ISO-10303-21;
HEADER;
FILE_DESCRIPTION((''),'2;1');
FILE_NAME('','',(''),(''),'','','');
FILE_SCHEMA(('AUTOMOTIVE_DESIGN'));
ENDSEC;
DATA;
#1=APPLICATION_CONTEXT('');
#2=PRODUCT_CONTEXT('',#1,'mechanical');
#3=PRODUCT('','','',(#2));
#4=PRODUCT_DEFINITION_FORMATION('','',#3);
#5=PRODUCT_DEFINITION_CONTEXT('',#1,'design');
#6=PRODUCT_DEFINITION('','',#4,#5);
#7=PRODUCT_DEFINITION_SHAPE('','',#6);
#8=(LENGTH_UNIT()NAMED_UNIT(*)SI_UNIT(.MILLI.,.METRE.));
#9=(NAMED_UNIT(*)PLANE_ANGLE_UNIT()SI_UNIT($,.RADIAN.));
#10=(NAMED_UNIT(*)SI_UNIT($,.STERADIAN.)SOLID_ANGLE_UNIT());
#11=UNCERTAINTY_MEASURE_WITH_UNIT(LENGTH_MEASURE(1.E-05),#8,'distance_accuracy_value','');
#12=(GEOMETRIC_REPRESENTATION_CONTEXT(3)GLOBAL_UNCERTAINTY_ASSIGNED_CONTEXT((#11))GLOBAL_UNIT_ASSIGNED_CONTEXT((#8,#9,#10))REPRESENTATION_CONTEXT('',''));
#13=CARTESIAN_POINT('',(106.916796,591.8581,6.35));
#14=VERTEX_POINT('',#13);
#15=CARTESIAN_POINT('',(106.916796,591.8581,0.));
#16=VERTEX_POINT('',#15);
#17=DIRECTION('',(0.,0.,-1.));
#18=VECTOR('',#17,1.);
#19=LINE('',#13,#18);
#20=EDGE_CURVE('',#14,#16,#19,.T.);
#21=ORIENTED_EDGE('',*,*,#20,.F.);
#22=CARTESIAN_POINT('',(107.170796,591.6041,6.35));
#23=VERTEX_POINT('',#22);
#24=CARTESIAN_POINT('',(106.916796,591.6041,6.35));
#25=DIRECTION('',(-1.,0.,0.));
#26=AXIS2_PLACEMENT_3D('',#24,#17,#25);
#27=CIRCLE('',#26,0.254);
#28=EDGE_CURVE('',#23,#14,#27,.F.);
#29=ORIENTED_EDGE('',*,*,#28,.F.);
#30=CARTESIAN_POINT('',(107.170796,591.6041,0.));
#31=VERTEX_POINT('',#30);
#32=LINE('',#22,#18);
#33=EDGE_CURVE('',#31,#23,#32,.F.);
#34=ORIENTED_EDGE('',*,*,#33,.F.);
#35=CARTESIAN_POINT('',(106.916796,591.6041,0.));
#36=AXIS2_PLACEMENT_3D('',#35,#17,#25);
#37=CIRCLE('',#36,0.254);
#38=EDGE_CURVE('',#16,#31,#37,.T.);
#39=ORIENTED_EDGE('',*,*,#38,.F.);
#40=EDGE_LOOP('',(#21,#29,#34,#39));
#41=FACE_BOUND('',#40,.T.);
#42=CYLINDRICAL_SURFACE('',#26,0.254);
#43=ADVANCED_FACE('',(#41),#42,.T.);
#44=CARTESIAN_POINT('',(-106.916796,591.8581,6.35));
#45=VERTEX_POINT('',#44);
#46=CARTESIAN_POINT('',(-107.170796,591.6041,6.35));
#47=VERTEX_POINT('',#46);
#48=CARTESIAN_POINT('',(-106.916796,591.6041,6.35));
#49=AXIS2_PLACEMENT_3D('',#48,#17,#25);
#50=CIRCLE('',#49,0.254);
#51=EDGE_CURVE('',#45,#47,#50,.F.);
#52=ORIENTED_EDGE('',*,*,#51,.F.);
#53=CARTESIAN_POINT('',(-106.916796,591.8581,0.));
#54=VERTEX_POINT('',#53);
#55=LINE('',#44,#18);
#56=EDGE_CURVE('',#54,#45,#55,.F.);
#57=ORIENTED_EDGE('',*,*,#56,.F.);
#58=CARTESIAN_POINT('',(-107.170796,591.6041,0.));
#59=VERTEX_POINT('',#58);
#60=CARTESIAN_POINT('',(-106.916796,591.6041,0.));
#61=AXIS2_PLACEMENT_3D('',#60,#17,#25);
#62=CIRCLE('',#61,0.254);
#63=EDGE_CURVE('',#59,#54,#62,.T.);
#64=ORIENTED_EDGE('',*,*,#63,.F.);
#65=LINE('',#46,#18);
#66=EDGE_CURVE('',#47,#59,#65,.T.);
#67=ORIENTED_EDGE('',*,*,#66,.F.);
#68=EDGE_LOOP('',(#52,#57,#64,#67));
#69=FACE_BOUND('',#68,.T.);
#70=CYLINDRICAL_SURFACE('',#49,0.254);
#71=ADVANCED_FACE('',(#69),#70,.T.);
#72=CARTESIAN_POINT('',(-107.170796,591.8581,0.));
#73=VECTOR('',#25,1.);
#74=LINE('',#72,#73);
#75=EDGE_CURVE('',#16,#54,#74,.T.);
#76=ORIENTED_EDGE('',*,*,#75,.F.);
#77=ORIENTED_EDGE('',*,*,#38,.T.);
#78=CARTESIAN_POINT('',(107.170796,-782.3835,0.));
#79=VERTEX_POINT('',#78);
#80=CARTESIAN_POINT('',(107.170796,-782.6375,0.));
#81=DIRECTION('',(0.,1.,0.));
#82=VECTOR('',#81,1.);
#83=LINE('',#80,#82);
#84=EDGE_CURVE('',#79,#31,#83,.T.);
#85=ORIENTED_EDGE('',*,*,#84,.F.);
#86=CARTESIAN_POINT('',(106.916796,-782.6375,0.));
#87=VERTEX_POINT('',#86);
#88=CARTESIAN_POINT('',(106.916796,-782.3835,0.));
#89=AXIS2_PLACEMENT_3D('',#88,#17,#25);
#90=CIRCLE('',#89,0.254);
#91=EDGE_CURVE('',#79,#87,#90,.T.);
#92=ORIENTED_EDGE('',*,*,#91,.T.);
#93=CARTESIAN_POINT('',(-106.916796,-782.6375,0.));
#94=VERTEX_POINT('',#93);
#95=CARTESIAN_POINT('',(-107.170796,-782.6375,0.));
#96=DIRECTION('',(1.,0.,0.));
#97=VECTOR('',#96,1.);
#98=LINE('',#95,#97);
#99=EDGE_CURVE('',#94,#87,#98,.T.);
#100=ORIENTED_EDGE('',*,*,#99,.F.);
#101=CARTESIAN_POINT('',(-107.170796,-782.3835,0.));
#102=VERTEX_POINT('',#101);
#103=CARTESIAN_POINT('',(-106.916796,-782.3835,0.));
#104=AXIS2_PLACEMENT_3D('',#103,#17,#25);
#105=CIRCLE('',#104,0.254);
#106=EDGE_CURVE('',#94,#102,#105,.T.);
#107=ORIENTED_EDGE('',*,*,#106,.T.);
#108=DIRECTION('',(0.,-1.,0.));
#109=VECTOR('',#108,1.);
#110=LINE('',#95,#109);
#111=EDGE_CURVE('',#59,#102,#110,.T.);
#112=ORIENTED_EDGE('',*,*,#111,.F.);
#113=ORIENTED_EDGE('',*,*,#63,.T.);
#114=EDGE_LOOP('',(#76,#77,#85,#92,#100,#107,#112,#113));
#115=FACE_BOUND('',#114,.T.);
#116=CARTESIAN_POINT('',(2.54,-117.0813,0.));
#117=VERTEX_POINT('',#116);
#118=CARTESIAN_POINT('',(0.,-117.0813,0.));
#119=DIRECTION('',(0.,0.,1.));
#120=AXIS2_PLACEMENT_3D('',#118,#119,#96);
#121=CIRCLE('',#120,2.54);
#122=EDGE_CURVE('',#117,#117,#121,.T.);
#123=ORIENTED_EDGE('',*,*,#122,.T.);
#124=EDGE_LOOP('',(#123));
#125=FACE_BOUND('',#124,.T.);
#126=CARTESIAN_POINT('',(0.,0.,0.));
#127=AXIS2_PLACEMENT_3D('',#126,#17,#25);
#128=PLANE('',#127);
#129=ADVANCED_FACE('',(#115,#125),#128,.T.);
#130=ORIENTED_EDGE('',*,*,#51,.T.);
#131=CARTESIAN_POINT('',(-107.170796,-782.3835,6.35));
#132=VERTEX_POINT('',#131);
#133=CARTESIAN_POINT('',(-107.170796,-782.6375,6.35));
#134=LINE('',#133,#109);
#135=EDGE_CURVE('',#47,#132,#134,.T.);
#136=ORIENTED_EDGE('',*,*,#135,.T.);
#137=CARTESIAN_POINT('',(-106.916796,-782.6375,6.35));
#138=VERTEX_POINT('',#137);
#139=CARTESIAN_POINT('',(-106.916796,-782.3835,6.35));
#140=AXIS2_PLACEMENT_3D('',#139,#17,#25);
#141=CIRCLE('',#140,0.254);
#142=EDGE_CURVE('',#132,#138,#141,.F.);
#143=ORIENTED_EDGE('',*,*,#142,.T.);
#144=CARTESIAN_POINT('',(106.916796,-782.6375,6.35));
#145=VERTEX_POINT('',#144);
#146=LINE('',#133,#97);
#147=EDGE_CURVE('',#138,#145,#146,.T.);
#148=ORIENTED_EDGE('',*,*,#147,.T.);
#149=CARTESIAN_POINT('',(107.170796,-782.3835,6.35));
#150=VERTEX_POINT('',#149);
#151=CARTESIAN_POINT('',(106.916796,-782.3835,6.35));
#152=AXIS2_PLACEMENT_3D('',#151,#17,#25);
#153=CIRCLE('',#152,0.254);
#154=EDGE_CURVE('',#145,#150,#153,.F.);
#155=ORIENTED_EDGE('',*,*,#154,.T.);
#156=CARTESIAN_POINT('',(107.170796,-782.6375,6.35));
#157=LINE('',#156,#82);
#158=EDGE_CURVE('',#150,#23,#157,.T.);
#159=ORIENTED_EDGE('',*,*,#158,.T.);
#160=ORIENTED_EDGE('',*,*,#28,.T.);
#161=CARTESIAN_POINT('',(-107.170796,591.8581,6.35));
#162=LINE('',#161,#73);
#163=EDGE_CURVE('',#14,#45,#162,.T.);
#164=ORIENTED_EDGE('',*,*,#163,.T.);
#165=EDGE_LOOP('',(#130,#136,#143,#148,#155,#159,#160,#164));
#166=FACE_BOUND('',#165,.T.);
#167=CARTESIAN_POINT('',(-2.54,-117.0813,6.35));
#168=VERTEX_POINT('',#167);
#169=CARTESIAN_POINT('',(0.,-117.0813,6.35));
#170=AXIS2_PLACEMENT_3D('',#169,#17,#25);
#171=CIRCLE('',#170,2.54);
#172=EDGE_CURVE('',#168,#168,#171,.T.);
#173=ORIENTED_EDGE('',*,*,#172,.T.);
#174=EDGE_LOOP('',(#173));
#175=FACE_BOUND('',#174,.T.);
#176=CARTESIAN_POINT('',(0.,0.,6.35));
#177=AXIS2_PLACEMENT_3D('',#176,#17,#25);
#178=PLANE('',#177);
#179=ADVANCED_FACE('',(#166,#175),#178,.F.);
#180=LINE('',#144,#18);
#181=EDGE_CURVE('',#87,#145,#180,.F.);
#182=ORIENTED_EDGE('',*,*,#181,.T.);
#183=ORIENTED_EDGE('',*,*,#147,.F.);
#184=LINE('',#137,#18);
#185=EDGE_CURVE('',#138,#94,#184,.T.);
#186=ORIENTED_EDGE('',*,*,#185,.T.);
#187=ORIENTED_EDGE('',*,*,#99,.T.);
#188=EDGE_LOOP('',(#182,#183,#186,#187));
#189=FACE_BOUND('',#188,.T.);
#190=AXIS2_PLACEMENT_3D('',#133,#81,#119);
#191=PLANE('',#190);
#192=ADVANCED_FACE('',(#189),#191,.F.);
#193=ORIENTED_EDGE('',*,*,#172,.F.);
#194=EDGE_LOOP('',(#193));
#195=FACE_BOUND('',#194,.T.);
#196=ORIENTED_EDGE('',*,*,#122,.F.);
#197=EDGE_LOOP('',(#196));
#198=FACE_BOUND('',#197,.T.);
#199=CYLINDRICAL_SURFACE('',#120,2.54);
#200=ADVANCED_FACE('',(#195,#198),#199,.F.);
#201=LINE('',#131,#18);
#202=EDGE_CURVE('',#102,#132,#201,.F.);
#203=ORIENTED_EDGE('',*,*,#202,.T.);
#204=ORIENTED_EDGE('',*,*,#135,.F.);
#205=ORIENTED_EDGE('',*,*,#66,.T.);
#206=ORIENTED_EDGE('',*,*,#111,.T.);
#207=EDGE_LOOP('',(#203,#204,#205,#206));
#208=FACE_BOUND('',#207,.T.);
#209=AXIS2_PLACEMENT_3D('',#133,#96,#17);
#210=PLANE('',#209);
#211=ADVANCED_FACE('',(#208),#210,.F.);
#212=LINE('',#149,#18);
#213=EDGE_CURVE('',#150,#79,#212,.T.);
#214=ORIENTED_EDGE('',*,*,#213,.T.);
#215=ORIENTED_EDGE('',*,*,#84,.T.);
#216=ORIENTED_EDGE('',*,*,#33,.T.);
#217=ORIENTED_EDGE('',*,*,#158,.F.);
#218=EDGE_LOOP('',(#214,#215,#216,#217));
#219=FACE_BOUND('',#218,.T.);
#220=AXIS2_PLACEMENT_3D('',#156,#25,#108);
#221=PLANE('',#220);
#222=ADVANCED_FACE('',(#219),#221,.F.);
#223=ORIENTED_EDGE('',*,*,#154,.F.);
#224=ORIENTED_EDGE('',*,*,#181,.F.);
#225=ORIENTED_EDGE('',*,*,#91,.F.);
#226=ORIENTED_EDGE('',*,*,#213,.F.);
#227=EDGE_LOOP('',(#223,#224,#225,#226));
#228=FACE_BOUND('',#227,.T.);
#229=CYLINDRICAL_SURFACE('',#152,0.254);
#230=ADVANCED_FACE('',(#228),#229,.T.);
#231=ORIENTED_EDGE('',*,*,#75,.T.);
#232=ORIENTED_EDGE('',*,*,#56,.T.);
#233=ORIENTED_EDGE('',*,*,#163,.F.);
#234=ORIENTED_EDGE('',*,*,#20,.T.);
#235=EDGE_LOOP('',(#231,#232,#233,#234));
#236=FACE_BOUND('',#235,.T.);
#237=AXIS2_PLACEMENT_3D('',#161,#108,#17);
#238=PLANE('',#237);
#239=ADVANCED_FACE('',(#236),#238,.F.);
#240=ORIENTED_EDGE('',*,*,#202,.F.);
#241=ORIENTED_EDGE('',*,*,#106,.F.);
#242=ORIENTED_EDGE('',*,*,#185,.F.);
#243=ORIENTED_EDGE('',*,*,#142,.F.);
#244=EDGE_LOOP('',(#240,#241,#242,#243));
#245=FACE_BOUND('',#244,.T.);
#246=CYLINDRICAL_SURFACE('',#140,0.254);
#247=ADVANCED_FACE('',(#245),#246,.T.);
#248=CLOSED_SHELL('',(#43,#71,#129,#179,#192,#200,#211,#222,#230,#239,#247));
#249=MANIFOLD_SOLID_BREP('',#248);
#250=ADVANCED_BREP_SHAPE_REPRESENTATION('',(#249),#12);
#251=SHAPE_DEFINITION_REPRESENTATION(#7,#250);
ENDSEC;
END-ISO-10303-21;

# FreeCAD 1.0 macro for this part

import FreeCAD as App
import Part
import Sketcher
Q = App.Units.Quantity


def edges_at(feature, points):
    """Names of the edges that pass closest to the given points."""
    edges = feature.Shape.Edges
    near = lambda p: min(range(len(edges)), key=lambda i: edges[i].distToShape(Part.Vertex(*p))[0])
    return sorted({f"Edge{near(p) + 1}" for p in points})

doc = App.newDocument("Part")
body = doc.addObject("PartDesign::Body", "Body")

# Sketch on XY plane
sketch1 = doc.addObject("Sketcher::SketchObject", "Sketch")
body.addObject(sketch1)
sketch1.AttachmentSupport = (doc.XY_Plane, [""])
sketch1.MapMode = "FlatFace"
sketch1.addGeometry([
    Part.LineSegment(App.Vector(-107, 592, 0), App.Vector(-107, -783, 0)),
    Part.LineSegment(App.Vector(-107, -783, 0), App.Vector(107, -783, 0)),
    Part.LineSegment(App.Vector(107, -783, 0), App.Vector(107, 592, 0)),
    Part.LineSegment(App.Vector(107, 592, 0), App.Vector(-107, 592, 0)),
], False)
sketch1.addConstraint([
    Sketcher.Constraint("Coincident", 0, 2, 1, 1),
    Sketcher.Constraint("Coincident", 1, 2, 2, 1),
    Sketcher.Constraint("Coincident", 2, 2, 3, 1),
    Sketcher.Constraint("Coincident", 3, 2, 0, 1),
    Sketcher.Constraint("Vertical", 0),
    Sketcher.Constraint("Horizontal", 1),
    Sketcher.Constraint("Vertical", 2),
    Sketcher.Constraint("Horizontal", 3),
    Sketcher.Constraint("DistanceY", 0, 2, 0, 1, Q("54.114 in")),
    Sketcher.Constraint("DistanceY", 0, 2, -1, 1, Q("30.8125 in")),
    Sketcher.Constraint("DistanceX", 1, 1, 1, 2, 214.341592),
    Sketcher.Constraint("DistanceX", 0, 2, -1, 1, 107.170796),
])
pad1 = doc.addObject("PartDesign::Pad", "Pad")
body.addObject(pad1)
pad1.Profile = sketch1
pad1.Length = Q("0.25 in")
doc.recompute()

fillet = doc.addObject("PartDesign::Fillet", "Fillet")
body.addObject(fillet)
fillet.Base = (pad1, edges_at(pad1, [
    (-107.171, 591.858, 3.175),
    (107.171, 591.858, 3.175),
    (107.171, -782.638, 3.175),
    (-107.171, -782.638, 3.175),
]))
fillet.Radius = Q("0.01 in")

# Sketch on XY plane
sketch2 = doc.addObject("Sketcher::SketchObject", "Sketch001")
body.addObject(sketch2)
sketch2.AttachmentSupport = (doc.XY_Plane, [""])
sketch2.MapMode = "FlatFace"
sketch2.AttachmentOffset = App.Placement(App.Vector(0, 0, 0.25 * 25.4), App.Rotation())
sketch2.addGeometry(Part.Circle(App.Vector(0, -117.1, 0), App.Vector(0, 0, 1), 2.5), False)
sketch2.addConstraint([
    Sketcher.Constraint("PointOnObject", 0, 3, -2),
    Sketcher.Constraint("Diameter", 0, Q("0.2 in")),
    Sketcher.Constraint("DistanceY", 0, 3, -1, 1, Q("4.6095 in")),
])
pocket1 = doc.addObject("PartDesign::Pocket", "Pocket")
body.addObject(pocket1)
pocket1.Profile = sketch2
pocket1.Type = "ThroughAll"
pocket1.Midplane = True

doc.recompute()
